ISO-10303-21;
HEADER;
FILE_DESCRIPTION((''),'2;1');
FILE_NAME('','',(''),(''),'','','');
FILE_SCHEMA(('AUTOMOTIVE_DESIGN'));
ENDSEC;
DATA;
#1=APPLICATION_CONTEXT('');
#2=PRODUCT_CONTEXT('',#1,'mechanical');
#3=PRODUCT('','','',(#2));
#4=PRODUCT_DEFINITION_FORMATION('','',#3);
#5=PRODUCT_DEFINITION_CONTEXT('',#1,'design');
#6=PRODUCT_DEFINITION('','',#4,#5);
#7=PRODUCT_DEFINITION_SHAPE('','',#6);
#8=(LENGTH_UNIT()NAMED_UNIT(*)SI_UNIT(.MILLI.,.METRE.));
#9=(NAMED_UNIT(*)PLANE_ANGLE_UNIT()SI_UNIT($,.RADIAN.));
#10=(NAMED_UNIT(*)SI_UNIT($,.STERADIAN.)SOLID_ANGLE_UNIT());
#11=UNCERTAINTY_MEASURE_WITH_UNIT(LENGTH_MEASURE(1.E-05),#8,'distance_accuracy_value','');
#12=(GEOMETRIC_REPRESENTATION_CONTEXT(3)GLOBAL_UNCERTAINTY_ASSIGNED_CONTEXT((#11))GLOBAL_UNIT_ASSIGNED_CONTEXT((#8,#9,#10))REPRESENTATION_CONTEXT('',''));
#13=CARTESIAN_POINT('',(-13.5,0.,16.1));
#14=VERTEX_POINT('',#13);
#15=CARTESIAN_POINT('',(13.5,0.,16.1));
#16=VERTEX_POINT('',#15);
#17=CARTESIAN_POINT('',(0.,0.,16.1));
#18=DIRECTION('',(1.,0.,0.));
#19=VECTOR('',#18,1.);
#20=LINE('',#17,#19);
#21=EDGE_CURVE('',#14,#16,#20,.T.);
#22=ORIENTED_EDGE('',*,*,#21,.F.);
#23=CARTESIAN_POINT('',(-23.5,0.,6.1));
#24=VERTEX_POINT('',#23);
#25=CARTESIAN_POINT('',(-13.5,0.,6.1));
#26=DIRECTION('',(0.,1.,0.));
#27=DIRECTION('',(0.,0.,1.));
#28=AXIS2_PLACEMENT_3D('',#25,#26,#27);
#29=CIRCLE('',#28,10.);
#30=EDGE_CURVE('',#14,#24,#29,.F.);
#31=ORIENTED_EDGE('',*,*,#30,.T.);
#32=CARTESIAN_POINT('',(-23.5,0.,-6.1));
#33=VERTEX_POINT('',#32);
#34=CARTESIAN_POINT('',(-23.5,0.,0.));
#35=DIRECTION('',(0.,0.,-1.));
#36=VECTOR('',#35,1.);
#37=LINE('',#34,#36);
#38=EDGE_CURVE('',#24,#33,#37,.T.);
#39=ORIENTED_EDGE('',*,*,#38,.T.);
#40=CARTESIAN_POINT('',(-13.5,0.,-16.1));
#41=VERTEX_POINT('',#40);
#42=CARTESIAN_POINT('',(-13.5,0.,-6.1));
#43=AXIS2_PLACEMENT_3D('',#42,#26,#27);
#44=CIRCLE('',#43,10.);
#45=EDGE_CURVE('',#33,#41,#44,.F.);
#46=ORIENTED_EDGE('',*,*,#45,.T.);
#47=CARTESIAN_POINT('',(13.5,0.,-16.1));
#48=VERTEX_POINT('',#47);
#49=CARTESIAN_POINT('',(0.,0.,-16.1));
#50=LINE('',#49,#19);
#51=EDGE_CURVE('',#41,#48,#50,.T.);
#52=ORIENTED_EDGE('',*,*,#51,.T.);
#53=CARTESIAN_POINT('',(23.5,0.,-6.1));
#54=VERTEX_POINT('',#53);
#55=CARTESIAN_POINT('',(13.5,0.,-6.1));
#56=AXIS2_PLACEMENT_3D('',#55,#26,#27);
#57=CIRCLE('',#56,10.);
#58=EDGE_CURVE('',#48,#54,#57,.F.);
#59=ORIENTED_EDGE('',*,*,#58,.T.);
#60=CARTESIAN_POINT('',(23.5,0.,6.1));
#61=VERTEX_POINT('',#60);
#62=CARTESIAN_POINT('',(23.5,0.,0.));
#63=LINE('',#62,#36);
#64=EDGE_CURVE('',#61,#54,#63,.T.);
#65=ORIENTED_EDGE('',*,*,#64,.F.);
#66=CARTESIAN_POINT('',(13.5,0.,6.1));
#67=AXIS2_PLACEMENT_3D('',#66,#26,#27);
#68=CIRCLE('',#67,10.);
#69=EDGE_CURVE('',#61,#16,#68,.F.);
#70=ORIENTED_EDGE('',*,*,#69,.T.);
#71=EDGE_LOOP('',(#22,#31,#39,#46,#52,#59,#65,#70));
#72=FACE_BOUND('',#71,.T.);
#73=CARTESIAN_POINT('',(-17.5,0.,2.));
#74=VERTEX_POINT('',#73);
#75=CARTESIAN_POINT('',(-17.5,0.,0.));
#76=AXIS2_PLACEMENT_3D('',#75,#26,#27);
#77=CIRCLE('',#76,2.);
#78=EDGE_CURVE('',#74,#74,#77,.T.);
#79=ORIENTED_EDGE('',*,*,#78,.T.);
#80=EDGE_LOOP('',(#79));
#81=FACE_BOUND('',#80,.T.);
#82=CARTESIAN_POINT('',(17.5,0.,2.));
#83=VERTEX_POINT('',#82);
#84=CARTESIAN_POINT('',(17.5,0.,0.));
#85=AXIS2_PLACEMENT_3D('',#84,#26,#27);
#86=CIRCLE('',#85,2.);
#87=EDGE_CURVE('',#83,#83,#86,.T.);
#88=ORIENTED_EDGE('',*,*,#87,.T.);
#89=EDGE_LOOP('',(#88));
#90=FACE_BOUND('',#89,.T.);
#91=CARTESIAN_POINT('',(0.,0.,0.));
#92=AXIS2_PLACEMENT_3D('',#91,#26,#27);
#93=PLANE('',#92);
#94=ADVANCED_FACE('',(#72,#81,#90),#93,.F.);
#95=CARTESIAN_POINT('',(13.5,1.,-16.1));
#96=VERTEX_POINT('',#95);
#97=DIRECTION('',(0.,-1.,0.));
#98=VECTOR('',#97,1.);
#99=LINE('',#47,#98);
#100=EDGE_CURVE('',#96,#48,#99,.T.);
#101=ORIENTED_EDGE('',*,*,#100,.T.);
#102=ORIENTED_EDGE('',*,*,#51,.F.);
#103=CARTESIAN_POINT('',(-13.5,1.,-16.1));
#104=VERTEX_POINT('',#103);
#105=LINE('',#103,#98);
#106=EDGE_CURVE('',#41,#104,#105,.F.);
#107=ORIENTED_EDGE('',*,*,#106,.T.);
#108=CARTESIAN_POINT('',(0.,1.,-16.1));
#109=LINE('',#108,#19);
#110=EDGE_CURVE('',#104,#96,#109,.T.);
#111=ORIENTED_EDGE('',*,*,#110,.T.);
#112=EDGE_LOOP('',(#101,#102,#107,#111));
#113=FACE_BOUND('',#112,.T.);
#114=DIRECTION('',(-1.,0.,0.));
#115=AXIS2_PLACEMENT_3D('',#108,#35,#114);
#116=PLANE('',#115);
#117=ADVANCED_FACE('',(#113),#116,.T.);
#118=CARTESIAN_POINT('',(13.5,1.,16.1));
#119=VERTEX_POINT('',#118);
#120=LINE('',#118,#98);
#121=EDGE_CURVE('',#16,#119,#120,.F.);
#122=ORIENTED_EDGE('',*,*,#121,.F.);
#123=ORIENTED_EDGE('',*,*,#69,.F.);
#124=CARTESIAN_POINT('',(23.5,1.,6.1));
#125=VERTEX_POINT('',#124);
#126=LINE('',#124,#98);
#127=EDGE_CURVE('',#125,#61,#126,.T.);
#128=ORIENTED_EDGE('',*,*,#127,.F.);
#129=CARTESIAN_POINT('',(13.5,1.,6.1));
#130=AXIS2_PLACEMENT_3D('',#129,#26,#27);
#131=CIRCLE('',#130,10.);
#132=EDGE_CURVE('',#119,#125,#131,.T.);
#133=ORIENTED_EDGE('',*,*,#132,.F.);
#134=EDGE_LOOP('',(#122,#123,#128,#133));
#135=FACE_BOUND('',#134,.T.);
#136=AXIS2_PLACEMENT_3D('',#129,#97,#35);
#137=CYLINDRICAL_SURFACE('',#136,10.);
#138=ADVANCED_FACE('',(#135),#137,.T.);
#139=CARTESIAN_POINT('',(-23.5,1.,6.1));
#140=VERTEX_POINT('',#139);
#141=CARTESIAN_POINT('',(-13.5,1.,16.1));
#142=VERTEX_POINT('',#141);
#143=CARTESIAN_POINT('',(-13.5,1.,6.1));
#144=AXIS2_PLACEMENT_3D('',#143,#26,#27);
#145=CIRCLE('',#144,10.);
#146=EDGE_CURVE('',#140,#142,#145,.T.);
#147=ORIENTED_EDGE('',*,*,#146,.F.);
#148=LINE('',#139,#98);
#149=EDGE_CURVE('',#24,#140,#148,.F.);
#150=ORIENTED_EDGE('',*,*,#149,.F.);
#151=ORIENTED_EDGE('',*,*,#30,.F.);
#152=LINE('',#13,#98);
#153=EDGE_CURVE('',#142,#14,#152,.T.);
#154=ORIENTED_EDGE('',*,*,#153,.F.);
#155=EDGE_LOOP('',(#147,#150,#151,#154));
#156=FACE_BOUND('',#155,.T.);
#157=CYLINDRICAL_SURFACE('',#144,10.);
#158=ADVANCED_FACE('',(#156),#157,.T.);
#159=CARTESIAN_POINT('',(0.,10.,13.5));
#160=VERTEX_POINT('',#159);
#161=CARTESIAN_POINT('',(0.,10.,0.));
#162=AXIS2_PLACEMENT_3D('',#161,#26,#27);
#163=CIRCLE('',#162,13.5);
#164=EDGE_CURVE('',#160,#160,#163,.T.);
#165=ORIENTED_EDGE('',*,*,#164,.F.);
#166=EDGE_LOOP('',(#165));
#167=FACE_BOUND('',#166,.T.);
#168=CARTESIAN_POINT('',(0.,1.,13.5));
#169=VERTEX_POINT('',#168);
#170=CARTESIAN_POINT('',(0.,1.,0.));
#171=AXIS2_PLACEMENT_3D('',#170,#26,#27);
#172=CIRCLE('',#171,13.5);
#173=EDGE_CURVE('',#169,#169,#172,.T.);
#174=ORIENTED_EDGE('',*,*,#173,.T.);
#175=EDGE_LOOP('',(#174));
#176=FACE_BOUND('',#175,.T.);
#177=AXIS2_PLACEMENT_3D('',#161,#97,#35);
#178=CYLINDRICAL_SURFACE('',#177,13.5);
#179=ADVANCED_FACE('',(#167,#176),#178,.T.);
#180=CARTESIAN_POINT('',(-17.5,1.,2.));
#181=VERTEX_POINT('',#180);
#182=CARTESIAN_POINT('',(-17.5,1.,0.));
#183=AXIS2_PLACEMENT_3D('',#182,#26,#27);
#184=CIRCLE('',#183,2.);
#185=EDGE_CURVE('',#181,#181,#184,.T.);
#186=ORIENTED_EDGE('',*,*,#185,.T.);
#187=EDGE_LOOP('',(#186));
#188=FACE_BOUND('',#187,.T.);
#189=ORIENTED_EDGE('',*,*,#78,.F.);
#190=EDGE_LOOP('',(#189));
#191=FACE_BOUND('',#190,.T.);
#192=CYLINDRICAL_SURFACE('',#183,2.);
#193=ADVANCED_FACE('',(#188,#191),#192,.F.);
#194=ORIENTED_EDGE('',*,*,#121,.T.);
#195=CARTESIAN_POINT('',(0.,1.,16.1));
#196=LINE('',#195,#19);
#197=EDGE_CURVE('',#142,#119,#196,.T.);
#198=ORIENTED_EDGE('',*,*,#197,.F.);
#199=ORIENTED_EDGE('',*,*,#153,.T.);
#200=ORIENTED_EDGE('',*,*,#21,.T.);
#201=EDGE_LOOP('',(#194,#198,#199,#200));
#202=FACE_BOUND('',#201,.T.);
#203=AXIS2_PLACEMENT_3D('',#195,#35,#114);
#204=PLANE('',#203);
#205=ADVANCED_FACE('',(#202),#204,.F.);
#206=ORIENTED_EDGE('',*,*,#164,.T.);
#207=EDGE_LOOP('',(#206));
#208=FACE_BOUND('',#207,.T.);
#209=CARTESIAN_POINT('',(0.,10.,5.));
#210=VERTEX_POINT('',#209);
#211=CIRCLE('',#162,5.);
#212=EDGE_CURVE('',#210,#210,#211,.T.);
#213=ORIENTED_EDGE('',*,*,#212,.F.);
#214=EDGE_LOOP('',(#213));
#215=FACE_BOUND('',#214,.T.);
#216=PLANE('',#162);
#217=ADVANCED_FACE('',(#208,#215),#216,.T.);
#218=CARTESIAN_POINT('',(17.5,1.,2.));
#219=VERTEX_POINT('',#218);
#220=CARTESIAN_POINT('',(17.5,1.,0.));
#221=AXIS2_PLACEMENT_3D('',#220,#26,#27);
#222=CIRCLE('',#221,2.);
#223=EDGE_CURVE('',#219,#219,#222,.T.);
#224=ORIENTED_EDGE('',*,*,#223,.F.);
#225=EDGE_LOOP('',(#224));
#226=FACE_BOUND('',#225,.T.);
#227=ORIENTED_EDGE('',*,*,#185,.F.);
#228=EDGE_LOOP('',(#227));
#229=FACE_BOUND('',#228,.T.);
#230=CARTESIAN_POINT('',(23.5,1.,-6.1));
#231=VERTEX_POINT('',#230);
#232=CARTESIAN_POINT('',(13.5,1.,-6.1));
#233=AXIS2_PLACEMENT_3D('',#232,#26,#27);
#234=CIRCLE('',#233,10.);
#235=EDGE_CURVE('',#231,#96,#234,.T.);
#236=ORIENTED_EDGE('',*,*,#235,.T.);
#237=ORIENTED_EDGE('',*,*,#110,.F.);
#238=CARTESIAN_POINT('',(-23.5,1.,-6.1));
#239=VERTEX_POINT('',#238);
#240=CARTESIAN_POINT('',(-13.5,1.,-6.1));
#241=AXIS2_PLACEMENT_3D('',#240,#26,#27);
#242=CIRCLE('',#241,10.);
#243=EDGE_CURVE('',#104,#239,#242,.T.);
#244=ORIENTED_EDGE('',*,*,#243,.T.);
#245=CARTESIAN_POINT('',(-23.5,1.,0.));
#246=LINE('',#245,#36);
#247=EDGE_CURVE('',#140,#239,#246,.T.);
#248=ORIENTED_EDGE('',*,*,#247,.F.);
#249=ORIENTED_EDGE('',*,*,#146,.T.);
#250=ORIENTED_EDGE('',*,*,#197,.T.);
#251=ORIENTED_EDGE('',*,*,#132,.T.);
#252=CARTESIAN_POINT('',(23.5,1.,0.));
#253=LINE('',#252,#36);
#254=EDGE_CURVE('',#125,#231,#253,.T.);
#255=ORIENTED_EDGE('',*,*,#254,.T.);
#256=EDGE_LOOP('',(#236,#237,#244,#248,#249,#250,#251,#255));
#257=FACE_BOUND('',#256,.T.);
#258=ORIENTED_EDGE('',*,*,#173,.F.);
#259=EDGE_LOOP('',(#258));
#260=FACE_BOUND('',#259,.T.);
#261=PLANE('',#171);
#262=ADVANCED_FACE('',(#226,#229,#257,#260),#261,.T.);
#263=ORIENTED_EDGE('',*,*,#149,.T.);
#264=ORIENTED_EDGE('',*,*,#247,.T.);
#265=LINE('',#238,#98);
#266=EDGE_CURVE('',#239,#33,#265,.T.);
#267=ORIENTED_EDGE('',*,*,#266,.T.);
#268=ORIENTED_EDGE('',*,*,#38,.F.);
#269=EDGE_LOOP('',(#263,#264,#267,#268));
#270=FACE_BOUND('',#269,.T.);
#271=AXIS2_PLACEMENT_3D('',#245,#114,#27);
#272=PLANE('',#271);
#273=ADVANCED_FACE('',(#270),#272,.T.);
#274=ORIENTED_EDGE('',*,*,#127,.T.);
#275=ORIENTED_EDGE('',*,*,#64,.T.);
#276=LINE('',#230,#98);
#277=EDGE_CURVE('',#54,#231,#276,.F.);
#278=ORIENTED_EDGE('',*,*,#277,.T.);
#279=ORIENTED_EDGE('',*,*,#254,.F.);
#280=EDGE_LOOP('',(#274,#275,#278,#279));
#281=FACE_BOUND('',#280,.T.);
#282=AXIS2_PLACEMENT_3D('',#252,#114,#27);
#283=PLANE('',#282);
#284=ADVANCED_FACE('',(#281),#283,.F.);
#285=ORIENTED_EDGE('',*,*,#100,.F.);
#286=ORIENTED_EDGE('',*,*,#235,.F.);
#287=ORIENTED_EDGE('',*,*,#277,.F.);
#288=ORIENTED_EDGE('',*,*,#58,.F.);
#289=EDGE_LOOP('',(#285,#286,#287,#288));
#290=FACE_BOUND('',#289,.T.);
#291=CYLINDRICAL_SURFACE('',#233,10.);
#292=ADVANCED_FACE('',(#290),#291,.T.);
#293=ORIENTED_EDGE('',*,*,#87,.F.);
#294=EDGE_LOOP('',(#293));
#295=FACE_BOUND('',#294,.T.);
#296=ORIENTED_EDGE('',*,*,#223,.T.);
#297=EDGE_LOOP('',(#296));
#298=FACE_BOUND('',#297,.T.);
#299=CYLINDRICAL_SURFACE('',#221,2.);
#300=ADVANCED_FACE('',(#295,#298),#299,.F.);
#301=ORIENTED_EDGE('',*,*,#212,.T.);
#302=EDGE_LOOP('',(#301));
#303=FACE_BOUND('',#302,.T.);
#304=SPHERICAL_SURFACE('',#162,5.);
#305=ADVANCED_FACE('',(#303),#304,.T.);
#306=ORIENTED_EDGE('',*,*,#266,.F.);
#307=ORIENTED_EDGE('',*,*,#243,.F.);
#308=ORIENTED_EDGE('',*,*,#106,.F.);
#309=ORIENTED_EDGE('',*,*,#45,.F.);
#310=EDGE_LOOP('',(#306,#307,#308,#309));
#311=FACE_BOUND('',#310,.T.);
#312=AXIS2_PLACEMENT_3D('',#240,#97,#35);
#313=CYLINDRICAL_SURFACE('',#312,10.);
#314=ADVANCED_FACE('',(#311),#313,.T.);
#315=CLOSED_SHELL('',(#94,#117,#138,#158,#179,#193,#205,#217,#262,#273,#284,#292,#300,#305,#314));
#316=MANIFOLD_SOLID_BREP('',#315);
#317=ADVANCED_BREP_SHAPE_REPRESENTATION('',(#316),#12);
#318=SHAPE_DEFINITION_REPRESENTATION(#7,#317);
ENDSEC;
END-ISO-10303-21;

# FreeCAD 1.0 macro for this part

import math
import FreeCAD as App
import Part
import Sketcher

V = App.Vector
Q = App.Units.Quantity


def edges_at(feature, points):
    """Names of the edges that pass closest to the given points."""
    edges = feature.Shape.Edges
    near = lambda p: min(range(len(edges)), key=lambda i: edges[i].distToShape(Part.Vertex(*p))[0])
    return sorted({f"Edge{near(p) + 1}" for p in points})

doc = App.newDocument("Part")
body = doc.addObject("PartDesign::Body", "Body")

sketch1 = body.newObject("Sketcher::SketchObject", "Sketch")
sketch1.AttachmentSupport = (doc.getObject("XZ_Plane"), [""])
sketch1.MapMode = "FlatFace"
sketch1.addGeometry([
    Part.LineSegment(V(-24, -16, 0), V(-24, 16, 0)),
    Part.LineSegment(V(-24, 16, 0), V(24, 16, 0)),
    Part.LineSegment(V(24, 16, 0), V(24, -16, 0)),
    Part.LineSegment(V(24, -16, 0), V(-24, -16, 0)),
], False)
sketch1.addConstraint([
    Sketcher.Constraint("Coincident", 0, 2, 1, 1),
    Sketcher.Constraint("Coincident", 1, 2, 2, 1),
    Sketcher.Constraint("Coincident", 2, 2, 3, 1),
    Sketcher.Constraint("Coincident", 3, 2, 0, 1),
    Sketcher.Constraint("Vertical", 0),
    Sketcher.Constraint("Horizontal", 1),
    Sketcher.Constraint("Vertical", 2),
    Sketcher.Constraint("Horizontal", 3),
    Sketcher.Constraint("Symmetric", 0, 2, 2, 2, -1, 1),
    Sketcher.Constraint("DistanceX", 1, 1, 1, 2, Q("47 mm")),
    Sketcher.Constraint("DistanceY", 0, 1, 0, 2, Q("32.2 mm")),
])
pad1 = body.newObject("PartDesign::Pad", "Pad")
pad1.Profile = sketch1
pad1.Length = 1
pad1.Reversed = True

sketch2 = body.newObject("Sketcher::SketchObject", "Sketch001")
sketch2.AttachmentSupport = (doc.getObject("XZ_Plane"), [""])
sketch2.MapMode = "FlatFace"
sketch2.AttachmentOffset = App.Placement(V(0, 0, -1), App.Rotation())
sketch2.addGeometry(Part.Circle(V(0, 0, 0), V(0, 0, 1), 14), False)
sketch2.addConstraint([
    Sketcher.Constraint("Coincident", 0, 3, -1, 1),
    Sketcher.Constraint("Diameter", 0, Q("27 mm")),
])
pad2 = body.newObject("PartDesign::Pad", "Pad001")
pad2.Profile = sketch2
pad2.Length = 9
pad2.Reversed = True

sketch3 = body.newObject("Sketcher::SketchObject", "Sketch002")
sketch3.AttachmentSupport = (doc.getObject("YZ_Plane"), [""])
sketch3.MapMode = "FlatFace"
sketch3.addGeometry([
    Part.LineSegment(V(15, 0, 0), V(10, 0, 0)),
    Part.LineSegment(V(10, 0, 0), V(10, 5, 0)),
    Part.ArcOfCircle(Part.Circle(V(10, 0, 0), V(0, 0, 1), 5), math.radians(0), math.radians(90)),
], False)
sketch3.addConstraint([
    Sketcher.Constraint("Coincident", 0, 2, 1, 1),
    Sketcher.Constraint("Coincident", 1, 2, 2, 2),
    Sketcher.Constraint("Coincident", 2, 1, 0, 1),
    Sketcher.Constraint("Horizontal", 0),
    Sketcher.Constraint("Vertical", 1),
    Sketcher.Constraint("Coincident", 0, 2, 2, 3),
    Sketcher.Constraint("PointOnObject", 2, 3, -1),
    Sketcher.Constraint("Radius", 2, Q("5 mm")),
    Sketcher.Constraint("DistanceX", -1, 1, 2, 3, Q("10 mm")),
])
revolution = body.newObject("PartDesign::Revolution", "Revolution")
revolution.Profile = sketch3
revolution.ReferenceAxis = (sketch3, ["H_Axis"])
revolution.Angle = 360

sketch4 = body.newObject("Sketcher::SketchObject", "Sketch003")
sketch4.AttachmentSupport = (doc.getObject("XZ_Plane"), [""])
sketch4.MapMode = "FlatFace"
sketch4.AttachmentOffset = App.Placement(V(0, 0, -1), App.Rotation())
sketch4.addGeometry([
    Part.Circle(V(-17.5, 0, 0), V(0, 0, 1), 2),
    Part.Circle(V(17.5, 0, 0), V(0, 0, 1), 2),
], False)
sketch4.addConstraint([
    Sketcher.Constraint("Equal", 0, 1),
    Sketcher.Constraint("Symmetric", 0, 3, 1, 3, -1, 1),
    Sketcher.Constraint("PointOnObject", 0, 3, -1),
    Sketcher.Constraint("Diameter", 0, Q("4 mm")),
    Sketcher.Constraint("DistanceX", 0, 3, 1, 3, Q("35 mm")),
])
doc.recompute()
hole = body.newObject("PartDesign::Hole", "Hole")
hole.Profile = sketch4
hole.ThreadType = "None"
hole.Diameter = 4
hole.DepthType = "ThroughAll"
hole.Reversed = True
doc.recompute()

fillet = body.newObject("PartDesign::Fillet", "Fillet")
fillet.Base = (hole, edges_at(hole, [
    (-23.5, 0.5, 16.1),
    (-23.5, 0.5, -16.1),
    (23.5, 0.5, -16.1),
    (23.5, 0.5, 16.1),
]))
fillet.Radius = 10

doc.recompute()
